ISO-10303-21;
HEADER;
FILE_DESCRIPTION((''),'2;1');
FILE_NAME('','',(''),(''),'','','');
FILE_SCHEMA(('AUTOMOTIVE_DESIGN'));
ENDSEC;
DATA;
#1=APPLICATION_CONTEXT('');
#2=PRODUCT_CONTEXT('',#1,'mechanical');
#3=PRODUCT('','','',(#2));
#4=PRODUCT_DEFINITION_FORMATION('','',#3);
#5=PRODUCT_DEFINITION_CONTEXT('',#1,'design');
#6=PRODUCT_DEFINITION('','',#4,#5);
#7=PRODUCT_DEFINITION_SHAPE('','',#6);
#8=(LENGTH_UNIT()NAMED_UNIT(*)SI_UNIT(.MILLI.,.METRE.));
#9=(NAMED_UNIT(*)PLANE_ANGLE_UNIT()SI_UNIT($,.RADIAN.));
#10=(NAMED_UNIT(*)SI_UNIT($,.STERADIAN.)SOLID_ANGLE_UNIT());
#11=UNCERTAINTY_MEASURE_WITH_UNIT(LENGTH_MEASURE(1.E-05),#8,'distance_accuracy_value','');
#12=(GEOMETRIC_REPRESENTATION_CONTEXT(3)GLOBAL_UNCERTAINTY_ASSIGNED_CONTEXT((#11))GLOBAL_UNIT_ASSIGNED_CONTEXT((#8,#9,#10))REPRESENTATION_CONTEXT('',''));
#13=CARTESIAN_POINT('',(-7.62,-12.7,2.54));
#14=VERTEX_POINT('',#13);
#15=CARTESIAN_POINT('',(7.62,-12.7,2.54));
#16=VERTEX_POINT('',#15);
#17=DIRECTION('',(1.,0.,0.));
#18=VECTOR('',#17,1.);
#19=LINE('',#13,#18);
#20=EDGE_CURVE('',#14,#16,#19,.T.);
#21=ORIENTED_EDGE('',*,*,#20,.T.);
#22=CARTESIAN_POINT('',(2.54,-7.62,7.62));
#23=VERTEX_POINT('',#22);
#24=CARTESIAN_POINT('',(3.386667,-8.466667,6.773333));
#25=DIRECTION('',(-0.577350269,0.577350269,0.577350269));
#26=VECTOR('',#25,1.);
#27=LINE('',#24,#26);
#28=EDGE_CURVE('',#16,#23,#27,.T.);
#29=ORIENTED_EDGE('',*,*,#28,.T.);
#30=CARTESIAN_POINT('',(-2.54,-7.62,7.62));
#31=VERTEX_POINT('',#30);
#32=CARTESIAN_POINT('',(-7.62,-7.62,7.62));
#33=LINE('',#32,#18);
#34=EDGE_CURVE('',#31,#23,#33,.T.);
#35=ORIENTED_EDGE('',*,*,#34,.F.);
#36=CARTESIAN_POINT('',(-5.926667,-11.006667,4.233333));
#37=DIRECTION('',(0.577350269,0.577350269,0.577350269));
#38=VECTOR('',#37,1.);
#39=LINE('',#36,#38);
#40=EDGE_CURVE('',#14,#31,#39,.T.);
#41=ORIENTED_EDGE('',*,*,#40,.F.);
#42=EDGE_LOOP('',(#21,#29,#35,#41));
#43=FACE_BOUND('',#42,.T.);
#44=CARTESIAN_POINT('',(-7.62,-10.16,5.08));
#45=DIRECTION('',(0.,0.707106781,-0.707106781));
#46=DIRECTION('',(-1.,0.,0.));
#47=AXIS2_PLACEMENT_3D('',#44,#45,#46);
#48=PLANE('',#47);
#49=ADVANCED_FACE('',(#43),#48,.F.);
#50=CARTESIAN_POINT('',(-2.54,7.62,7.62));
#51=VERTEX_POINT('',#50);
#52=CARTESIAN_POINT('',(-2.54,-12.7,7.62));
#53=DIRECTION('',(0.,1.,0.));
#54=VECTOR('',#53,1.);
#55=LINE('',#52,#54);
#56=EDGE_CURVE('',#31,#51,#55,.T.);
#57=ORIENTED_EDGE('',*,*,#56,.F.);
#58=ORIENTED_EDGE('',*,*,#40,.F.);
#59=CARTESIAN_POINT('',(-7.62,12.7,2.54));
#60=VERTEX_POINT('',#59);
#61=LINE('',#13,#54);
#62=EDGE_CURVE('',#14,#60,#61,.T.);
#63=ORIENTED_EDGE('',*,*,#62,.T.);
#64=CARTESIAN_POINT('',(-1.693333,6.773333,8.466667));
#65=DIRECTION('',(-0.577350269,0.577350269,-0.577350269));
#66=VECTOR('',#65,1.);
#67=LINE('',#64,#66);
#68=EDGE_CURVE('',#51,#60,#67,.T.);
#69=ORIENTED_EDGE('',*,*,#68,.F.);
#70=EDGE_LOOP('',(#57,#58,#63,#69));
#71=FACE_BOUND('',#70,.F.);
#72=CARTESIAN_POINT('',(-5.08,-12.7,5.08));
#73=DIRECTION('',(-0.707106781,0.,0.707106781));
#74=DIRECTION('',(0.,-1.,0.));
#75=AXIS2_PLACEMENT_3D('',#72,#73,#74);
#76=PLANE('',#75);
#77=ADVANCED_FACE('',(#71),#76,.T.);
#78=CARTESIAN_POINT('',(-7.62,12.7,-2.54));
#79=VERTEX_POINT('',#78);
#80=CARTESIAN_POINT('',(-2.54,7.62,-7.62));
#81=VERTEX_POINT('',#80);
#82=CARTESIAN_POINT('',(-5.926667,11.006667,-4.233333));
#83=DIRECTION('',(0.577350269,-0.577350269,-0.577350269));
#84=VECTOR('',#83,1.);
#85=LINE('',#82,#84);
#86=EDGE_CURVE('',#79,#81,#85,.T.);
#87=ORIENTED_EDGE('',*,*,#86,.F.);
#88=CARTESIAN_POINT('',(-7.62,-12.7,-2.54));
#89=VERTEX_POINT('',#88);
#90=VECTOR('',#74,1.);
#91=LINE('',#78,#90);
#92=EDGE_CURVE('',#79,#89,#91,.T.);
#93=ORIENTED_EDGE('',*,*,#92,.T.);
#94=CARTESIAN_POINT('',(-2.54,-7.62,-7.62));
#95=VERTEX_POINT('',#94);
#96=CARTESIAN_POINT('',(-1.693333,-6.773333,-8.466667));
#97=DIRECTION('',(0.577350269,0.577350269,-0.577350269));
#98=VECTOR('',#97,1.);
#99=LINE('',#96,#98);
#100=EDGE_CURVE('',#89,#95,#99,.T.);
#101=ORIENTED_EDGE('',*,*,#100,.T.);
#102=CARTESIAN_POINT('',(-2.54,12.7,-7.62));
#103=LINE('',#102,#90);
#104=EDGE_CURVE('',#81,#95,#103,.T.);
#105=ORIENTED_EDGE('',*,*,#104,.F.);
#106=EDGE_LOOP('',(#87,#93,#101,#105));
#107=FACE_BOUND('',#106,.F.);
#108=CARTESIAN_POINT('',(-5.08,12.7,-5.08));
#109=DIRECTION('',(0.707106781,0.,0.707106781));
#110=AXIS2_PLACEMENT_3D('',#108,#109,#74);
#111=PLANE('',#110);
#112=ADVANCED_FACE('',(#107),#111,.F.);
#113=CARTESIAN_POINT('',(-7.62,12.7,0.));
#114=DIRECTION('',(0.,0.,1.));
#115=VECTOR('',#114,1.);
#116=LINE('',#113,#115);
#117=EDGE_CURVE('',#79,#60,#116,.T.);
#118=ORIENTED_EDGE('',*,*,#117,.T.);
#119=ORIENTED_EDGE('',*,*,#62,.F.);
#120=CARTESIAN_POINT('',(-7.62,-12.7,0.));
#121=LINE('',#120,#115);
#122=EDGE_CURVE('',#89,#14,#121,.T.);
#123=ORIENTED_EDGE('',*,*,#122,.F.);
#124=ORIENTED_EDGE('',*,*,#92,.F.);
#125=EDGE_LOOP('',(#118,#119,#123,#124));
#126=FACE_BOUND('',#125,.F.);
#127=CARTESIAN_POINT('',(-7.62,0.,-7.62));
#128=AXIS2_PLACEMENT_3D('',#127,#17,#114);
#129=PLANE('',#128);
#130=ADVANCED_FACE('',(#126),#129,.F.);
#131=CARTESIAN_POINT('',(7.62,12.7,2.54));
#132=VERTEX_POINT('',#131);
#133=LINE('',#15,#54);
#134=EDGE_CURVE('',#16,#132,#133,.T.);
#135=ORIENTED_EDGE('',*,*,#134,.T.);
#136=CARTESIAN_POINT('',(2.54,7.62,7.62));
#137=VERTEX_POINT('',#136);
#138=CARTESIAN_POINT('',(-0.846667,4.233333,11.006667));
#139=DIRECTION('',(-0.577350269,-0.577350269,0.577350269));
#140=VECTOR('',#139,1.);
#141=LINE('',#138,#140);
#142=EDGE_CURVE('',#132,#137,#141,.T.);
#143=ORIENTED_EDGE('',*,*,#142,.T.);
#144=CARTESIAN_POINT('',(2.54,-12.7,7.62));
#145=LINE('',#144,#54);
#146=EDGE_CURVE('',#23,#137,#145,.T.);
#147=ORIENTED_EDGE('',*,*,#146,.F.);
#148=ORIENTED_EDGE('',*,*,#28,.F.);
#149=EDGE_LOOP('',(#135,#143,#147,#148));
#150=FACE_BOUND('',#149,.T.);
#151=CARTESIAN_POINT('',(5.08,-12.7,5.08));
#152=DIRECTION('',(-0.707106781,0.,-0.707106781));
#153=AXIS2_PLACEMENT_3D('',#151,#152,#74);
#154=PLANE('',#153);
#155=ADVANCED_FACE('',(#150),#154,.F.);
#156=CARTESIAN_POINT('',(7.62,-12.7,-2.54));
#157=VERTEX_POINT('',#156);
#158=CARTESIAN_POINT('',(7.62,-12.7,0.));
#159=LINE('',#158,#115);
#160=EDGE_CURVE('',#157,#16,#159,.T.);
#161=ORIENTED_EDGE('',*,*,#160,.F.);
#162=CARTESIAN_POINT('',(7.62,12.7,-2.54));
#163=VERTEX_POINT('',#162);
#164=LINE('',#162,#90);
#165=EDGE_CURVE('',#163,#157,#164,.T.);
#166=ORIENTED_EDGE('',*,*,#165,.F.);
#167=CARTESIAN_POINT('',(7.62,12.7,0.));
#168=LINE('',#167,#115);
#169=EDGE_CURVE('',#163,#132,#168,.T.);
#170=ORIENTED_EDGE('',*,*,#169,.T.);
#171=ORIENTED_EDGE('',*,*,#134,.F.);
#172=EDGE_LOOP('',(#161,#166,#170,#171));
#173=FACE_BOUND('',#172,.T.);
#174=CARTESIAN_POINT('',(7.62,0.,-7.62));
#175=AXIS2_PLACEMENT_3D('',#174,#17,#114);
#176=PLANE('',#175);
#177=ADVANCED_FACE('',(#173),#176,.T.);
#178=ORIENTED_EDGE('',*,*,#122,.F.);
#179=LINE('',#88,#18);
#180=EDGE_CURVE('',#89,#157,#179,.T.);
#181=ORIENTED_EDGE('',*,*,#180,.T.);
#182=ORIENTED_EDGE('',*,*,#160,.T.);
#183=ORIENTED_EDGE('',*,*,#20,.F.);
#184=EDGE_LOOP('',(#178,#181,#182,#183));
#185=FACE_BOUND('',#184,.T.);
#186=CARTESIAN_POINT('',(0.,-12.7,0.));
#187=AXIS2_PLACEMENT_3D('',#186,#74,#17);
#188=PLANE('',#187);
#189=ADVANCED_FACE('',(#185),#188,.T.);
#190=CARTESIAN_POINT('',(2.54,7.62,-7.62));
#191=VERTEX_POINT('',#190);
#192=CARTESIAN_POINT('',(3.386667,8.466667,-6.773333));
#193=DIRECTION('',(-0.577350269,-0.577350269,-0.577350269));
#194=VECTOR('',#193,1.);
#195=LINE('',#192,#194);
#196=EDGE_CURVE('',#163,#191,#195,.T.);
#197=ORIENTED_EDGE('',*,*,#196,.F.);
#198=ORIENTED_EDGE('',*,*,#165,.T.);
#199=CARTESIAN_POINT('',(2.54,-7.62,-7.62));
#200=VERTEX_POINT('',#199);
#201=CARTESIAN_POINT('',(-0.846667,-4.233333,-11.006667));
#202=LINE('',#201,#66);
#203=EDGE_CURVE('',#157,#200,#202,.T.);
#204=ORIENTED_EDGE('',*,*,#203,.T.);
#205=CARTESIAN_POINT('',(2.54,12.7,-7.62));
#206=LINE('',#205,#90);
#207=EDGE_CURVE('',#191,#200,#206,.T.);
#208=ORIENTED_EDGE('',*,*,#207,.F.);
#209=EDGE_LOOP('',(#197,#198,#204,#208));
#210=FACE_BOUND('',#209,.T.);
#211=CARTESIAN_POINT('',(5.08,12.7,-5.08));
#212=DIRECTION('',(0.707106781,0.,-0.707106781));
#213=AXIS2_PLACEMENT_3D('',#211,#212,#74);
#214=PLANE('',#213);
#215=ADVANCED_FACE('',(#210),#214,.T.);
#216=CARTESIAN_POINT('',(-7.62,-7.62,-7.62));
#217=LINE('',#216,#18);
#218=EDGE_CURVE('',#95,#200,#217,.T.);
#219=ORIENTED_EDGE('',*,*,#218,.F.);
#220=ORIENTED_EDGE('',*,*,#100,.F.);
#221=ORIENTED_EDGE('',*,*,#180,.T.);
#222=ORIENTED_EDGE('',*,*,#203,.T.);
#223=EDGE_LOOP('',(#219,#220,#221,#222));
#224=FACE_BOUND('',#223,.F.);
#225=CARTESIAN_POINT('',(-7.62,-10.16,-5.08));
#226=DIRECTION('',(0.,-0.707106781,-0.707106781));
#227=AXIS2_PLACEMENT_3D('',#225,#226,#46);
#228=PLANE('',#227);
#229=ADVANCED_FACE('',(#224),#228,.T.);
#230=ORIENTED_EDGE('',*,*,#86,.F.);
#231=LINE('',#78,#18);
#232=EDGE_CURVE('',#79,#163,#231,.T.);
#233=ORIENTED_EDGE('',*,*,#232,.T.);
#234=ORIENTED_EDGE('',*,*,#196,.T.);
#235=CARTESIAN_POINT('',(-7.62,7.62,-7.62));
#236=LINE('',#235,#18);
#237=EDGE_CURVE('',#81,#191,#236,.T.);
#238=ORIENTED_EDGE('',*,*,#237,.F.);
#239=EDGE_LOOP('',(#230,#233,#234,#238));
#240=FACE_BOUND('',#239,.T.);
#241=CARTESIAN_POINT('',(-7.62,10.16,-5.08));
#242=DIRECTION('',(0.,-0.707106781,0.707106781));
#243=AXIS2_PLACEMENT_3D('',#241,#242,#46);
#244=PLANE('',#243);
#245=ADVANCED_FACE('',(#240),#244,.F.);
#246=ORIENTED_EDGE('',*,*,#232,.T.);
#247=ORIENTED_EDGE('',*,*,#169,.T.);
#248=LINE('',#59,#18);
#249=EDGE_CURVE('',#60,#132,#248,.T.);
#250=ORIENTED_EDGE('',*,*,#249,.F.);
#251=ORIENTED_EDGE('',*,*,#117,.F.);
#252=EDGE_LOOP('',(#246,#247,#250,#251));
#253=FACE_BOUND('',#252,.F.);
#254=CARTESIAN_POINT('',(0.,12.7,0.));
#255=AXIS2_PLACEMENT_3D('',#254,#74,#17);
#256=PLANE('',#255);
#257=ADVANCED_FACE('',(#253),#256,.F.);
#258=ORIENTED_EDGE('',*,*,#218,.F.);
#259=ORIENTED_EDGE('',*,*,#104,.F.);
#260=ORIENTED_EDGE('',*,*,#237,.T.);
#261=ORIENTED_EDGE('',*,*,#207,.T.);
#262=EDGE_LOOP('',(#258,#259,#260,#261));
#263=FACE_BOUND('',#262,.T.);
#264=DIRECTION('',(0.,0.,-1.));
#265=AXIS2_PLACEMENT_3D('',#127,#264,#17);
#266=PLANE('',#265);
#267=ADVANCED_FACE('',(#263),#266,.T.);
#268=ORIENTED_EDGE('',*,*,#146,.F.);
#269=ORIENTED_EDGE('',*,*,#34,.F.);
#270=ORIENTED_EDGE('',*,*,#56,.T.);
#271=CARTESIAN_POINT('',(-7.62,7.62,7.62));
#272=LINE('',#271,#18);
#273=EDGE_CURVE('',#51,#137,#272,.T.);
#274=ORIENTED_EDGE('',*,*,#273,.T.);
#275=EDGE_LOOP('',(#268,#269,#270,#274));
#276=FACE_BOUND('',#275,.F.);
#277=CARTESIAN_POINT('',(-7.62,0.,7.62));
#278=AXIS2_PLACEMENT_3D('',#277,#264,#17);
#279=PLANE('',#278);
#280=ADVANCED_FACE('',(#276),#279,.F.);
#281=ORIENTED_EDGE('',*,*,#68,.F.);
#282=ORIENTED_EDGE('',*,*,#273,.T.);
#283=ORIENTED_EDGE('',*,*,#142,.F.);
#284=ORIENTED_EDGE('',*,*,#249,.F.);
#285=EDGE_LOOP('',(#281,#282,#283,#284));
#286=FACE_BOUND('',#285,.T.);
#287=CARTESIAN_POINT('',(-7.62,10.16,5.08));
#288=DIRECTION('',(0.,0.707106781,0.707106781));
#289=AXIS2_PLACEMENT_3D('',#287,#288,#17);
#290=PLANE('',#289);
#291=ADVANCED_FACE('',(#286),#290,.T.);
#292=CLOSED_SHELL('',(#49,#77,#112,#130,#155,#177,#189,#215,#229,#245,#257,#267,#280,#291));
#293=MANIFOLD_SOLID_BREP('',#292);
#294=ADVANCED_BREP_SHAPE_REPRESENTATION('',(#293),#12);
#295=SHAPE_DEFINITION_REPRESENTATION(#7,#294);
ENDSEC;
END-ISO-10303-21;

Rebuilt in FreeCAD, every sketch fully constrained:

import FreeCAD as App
import Part
import Sketcher

V = App.Vector
Q = App.Units.Quantity


def edges_at(feature, points):
    """Names of the edges that pass closest to the given points."""
    edges = feature.Shape.Edges
    near = lambda p: min(range(len(edges)), key=lambda i: edges[i].distToShape(Part.Vertex(*p))[0])
    return sorted({f"Edge{near(p) + 1}" for p in points})


def add_polygon(sketch, points):
    """Adds a closed chain of lines whose ends are joined by coincident constraints."""
    first, n = sketch.GeometryCount, len(points)
    for a, b in zip(points, points[1:] + points[:1]):
        sketch.addGeometry(Part.LineSegment(App.Vector(*a, 0), App.Vector(*b, 0)), False)
    for i in range(n):
        sketch.addConstraint(Sketcher.Constraint("Coincident", first + i, 2, first + (i + 1) % n, 1))

doc = App.newDocument("Part")
body = doc.addObject("PartDesign::Body", "Body")

# Sketch on XZ plane
sketch1 = body.newObject("Sketcher::SketchObject", "Sketch")
sketch1.AttachmentSupport = (doc.getObject("XZ_Plane"), [""])
sketch1.MapMode = "FlatFace"
add_polygon(sketch1, [(-8, 8), (-8, -8), (8, -8), (8, 8)])  # lines 0-3
sketch1.addConstraint([
    Sketcher.Constraint("Vertical", 0),
    Sketcher.Constraint("Horizontal", 1),
    Sketcher.Constraint("Vertical", 2),
    Sketcher.Constraint("Horizontal", 3),
    Sketcher.Constraint("Symmetric", 0, 2, 2, 2, -1, 1),
    Sketcher.Constraint("Equal", 3, 0),
    Sketcher.Constraint("DistanceX", 1, 1, 1, 2, Q("0.6 in")),
])
pad1 = body.newObject("PartDesign::Pad", "Pad")
pad1.Profile = sketch1
pad1.Length = Q("1 in")
pad1.Midplane = True
doc.recompute()

chamfer = body.newObject("PartDesign::Chamfer", "Chamfer")
chamfer.Base = (pad1, edges_at(pad1, [
    (0, -12.7, 7.62),
    (7.62, 0, 7.62),
    (0, 12.7, 7.62),
    (-7.62, 0, 7.62),
    (0, -12.7, -7.62),
    (-7.62, 0, -7.62),
    (7.62, 0, -7.62),
    (0, 12.7, -7.62),
]))
chamfer.Size = Q("0.2 in")

doc.recompute()
